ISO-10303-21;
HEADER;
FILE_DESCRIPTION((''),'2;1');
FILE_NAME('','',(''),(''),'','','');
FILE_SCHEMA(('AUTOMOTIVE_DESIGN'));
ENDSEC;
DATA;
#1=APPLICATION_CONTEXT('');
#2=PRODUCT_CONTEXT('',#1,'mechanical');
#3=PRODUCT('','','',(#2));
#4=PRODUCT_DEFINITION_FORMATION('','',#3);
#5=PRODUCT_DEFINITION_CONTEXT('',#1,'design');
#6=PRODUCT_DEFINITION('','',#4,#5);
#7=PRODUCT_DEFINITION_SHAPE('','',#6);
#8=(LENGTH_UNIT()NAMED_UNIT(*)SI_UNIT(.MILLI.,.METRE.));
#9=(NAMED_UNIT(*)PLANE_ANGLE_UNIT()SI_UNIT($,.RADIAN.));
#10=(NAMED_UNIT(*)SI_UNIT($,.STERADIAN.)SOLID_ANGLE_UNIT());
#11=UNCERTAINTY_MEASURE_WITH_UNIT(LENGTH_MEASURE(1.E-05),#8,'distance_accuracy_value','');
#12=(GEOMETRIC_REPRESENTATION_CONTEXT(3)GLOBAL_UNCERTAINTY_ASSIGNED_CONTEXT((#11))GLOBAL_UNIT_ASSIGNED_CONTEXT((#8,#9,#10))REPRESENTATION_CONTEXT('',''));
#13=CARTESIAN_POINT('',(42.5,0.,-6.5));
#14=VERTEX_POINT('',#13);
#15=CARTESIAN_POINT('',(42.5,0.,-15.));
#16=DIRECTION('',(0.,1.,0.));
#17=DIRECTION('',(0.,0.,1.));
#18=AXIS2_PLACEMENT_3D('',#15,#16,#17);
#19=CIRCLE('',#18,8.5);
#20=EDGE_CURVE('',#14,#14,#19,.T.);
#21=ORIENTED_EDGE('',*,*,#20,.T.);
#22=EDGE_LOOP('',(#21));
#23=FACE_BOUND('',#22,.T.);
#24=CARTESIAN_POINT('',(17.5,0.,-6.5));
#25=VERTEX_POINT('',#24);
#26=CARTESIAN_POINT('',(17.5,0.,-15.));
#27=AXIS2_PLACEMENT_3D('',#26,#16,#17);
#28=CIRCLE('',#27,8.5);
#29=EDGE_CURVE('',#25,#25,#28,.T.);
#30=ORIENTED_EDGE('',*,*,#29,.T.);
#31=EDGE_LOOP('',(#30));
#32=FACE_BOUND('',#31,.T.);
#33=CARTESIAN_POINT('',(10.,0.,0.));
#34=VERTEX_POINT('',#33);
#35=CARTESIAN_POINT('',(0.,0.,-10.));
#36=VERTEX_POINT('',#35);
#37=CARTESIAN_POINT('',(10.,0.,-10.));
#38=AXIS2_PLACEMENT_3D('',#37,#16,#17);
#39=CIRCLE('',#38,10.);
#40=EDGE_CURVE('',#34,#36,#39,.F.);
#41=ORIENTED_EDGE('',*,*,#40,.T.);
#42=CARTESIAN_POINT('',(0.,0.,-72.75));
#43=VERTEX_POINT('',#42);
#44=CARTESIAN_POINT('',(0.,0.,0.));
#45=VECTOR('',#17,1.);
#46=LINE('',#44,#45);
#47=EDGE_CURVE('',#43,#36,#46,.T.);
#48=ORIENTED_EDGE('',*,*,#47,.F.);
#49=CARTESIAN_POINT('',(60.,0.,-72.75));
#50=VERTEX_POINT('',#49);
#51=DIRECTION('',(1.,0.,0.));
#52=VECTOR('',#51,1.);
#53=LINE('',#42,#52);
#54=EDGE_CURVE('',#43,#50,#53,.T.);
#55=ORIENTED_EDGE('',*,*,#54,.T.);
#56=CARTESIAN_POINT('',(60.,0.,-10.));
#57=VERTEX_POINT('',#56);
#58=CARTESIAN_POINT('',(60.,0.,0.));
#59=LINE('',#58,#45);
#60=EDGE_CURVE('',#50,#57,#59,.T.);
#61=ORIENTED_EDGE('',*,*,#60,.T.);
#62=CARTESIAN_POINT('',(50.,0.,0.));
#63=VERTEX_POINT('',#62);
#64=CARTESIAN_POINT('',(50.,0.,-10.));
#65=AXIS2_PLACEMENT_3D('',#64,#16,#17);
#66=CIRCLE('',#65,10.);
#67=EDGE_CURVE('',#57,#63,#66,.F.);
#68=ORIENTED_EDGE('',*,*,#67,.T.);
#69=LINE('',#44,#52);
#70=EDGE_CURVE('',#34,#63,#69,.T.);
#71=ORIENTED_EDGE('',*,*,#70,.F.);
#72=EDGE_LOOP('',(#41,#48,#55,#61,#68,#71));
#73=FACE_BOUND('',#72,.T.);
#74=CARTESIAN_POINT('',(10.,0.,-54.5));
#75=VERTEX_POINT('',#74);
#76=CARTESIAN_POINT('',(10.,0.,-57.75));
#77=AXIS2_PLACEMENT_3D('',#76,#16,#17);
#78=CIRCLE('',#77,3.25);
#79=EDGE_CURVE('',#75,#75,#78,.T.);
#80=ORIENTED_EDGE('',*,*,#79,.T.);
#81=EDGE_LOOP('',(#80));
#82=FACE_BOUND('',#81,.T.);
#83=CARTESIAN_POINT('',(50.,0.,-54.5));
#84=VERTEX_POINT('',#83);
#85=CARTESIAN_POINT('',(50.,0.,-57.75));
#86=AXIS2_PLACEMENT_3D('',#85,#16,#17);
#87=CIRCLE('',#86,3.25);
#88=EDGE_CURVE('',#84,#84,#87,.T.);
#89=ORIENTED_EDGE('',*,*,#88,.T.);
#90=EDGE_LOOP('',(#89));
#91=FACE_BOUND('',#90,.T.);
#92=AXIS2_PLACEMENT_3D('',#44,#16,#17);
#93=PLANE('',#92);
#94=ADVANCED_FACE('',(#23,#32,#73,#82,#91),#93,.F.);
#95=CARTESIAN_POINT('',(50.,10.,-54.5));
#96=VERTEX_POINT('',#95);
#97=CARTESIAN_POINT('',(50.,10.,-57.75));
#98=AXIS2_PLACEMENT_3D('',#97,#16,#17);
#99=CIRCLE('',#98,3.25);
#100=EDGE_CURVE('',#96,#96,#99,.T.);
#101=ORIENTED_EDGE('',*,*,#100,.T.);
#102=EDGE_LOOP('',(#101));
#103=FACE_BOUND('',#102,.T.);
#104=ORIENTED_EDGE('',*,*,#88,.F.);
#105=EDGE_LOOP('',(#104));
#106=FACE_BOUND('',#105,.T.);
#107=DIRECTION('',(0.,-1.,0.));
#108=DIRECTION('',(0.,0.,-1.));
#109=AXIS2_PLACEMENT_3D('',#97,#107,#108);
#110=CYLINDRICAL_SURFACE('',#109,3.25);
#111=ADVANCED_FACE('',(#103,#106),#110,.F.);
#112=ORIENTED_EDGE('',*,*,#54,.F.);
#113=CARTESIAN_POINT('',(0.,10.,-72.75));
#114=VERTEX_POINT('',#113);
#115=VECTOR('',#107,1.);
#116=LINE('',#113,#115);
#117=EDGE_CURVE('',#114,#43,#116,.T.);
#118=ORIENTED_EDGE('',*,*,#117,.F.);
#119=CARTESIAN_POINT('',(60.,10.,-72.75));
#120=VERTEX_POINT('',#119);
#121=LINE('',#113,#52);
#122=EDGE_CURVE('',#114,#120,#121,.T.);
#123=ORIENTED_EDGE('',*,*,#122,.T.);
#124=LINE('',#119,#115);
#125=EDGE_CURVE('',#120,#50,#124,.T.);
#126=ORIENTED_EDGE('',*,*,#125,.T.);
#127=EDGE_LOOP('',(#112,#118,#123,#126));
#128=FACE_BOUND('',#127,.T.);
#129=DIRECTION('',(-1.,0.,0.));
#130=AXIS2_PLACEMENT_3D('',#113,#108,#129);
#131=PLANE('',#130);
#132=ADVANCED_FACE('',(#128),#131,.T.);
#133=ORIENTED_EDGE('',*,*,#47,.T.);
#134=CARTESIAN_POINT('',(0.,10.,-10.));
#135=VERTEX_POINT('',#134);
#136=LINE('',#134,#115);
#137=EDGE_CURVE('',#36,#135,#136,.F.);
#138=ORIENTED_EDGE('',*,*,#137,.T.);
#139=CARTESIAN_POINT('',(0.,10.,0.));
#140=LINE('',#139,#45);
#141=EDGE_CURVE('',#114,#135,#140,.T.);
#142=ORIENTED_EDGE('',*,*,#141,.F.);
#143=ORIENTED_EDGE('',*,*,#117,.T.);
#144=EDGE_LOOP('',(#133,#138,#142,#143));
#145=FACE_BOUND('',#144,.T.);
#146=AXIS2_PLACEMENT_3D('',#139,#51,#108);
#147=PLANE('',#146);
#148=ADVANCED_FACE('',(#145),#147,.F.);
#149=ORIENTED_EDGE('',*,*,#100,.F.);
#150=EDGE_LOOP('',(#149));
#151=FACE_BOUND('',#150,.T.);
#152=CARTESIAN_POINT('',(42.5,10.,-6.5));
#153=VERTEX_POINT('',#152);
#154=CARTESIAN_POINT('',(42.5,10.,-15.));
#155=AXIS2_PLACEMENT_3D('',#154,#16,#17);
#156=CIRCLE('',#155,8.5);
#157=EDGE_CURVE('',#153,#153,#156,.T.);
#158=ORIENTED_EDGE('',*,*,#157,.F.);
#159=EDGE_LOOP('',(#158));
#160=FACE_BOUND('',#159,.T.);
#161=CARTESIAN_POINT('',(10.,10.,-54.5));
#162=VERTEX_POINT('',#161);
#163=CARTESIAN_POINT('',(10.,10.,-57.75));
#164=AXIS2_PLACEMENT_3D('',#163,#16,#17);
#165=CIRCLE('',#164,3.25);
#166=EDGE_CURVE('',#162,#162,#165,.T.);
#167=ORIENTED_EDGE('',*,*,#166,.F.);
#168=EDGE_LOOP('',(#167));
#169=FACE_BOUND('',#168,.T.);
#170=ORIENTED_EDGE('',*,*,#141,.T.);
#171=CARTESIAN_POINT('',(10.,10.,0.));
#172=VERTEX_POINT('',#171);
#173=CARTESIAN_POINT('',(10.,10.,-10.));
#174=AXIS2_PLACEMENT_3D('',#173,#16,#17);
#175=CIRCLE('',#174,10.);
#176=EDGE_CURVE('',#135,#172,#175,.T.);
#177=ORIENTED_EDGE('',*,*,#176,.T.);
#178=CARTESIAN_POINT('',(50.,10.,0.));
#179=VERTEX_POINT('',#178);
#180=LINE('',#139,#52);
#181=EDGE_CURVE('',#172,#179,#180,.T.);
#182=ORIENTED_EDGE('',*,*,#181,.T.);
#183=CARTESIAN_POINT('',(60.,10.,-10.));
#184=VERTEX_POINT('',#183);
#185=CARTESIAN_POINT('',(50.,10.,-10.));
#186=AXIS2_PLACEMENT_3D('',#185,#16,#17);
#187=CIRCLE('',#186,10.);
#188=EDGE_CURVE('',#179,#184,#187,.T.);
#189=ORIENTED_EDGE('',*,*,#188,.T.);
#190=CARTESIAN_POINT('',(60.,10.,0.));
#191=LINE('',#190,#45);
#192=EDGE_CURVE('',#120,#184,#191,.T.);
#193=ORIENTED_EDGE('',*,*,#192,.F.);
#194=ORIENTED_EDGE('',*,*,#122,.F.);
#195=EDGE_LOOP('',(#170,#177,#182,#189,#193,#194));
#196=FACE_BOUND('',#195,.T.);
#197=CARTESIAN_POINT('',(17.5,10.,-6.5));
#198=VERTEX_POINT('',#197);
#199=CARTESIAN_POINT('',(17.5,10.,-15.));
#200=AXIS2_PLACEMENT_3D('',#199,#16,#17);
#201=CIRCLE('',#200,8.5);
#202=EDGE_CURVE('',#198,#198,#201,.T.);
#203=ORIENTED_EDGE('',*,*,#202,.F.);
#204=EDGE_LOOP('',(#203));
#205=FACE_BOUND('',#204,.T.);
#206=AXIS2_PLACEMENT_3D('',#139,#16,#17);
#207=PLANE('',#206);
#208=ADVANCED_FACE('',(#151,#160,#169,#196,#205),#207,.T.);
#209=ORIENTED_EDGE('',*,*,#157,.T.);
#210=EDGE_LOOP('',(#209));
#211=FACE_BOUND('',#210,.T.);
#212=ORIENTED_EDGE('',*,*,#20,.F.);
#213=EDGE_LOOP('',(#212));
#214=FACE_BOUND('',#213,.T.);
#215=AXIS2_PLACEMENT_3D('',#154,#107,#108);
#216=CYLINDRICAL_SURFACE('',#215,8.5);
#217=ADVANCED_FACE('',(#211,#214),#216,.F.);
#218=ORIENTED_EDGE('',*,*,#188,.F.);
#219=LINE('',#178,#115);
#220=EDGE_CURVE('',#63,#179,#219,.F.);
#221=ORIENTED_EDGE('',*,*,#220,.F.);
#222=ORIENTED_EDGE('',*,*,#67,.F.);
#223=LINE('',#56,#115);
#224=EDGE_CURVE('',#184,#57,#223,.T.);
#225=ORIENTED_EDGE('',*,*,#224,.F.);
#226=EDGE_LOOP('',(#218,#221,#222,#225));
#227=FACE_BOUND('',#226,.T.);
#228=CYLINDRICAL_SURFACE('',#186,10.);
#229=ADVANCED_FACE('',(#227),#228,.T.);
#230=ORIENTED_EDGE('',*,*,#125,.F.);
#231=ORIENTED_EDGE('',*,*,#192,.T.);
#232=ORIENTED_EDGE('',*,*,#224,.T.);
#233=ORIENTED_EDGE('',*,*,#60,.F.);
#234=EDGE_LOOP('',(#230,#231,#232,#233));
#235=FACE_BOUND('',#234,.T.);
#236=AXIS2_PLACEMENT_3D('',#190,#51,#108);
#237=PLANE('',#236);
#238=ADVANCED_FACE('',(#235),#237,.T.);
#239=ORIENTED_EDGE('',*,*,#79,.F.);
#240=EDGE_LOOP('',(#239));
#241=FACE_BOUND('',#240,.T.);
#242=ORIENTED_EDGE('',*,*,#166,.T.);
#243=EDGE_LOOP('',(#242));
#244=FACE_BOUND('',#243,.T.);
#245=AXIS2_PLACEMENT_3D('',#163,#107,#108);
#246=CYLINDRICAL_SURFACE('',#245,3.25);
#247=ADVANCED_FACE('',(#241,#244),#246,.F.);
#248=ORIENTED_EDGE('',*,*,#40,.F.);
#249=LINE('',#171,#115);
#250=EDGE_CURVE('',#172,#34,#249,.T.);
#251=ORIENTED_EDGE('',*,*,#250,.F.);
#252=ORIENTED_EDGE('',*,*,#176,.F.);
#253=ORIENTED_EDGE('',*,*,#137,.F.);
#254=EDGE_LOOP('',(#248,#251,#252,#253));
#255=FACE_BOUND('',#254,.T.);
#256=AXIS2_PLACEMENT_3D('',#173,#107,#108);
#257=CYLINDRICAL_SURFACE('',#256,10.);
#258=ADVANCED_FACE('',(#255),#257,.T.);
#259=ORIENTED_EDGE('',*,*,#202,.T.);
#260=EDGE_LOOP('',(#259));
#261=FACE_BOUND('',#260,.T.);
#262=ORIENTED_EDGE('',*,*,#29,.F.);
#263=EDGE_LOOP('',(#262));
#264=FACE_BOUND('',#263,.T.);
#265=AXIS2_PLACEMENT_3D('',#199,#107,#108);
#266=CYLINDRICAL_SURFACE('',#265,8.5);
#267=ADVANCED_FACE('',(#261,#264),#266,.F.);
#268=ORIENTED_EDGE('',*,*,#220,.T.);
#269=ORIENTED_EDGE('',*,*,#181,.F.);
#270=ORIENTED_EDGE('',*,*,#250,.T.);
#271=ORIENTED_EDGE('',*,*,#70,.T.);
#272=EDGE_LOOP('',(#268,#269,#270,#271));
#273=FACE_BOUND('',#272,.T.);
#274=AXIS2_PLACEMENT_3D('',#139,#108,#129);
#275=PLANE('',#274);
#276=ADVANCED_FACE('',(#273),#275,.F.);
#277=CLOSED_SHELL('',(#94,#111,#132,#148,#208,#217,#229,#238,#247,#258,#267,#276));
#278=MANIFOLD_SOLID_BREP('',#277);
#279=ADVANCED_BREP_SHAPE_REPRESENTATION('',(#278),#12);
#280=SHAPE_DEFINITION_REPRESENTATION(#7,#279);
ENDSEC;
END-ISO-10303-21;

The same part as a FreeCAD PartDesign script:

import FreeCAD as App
import Part
import Sketcher
Q = App.Units.Quantity


def edges_at(feature, points):
    """Names of the edges that pass closest to the given points."""
    edges = feature.Shape.Edges
    near = lambda p: min(range(len(edges)), key=lambda i: edges[i].distToShape(Part.Vertex(*p))[0])
    return sorted({f"Edge{near(p) + 1}" for p in points})


def add_polygon(sketch, points):
    """Adds a closed chain of lines whose ends are joined by coincident constraints."""
    first, n = sketch.GeometryCount, len(points)
    for a, b in zip(points, points[1:] + points[:1]):
        sketch.addGeometry(Part.LineSegment(App.Vector(*a, 0), App.Vector(*b, 0)), False)
    for i in range(n):
        sketch.addConstraint(Sketcher.Constraint("Coincident", first + i, 2, first + (i + 1) % n, 1))

doc = App.newDocument("Part")
params = doc.addObject("Spreadsheet::Sheet", "Params")
for row, (alias, value) in enumerate([
    ("sketch1_diameter", "17 mm"),
    ("sketch1_diameter2", "6.5 mm"),
    ("sketch1_width", "60 mm"),
    ("sketch1_height", "72.75 mm"),
    ("pad1_length", "10 mm"),
    ("fillet_radius", "10 mm"),
], start=1):
    params.set(f"A{row}", alias)
    params.set(f"B{row}", "=" + value)
    params.setAlias(f"B{row}", alias)

body = doc.addObject("PartDesign::Body", "Body")

# Sketch on XZ plane
sketch1 = doc.addObject("Sketcher::SketchObject", "Sketch")
body.addObject(sketch1)
sketch1.AttachmentSupport = (doc.XZ_Plane, [""])
sketch1.MapMode = "FlatFace"
add_polygon(sketch1, [(0, -72.75), (0, 0), (60, 0), (60, -72.75)])  # lines 0-3
sketch1.addGeometry(Part.Circle(App.Vector(17.5, -15, 0), App.Vector(0, 0, 1), 8.5), False)  # 4
sketch1.addGeometry(Part.Circle(App.Vector(42.5, -15, 0), App.Vector(0, 0, 1), 8.5), False)  # 5
sketch1.addGeometry(Part.Circle(App.Vector(10, -57.75, 0), App.Vector(0, 0, 1), 3.25), False)  # 6
sketch1.addGeometry(Part.Circle(App.Vector(50, -57.75, 0), App.Vector(0, 0, 1), 3.25), False)  # 7
sketch1.addConstraint(Sketcher.Constraint("Vertical", 0))
sketch1.addConstraint(Sketcher.Constraint("Horizontal", 1))
sketch1.addConstraint(Sketcher.Constraint("Vertical", 2))
sketch1.addConstraint(Sketcher.Constraint("Horizontal", 3))
sketch1.addConstraint(Sketcher.Constraint("Coincident", 0, 2, -1, 1))
sketch1.addConstraint(Sketcher.Constraint("Equal", 4, 5))
sketch1.addConstraint(Sketcher.Constraint("Equal", 6, 7))
sketch1.addConstraint(Sketcher.Constraint("Horizontal", 4, 3, 5, 3))
sketch1.addConstraint(Sketcher.Constraint("Horizontal", 6, 3, 7, 3))
sketch1.addConstraint(Sketcher.Constraint("Diameter", 4, Q("17 mm")))
sketch1.addConstraint(Sketcher.Constraint("Diameter", 6, Q("6.5 mm")))
sketch1.addConstraint(Sketcher.Constraint("DistanceX", 1, 1, 1, 2, Q("60 mm")))
sketch1.addConstraint(Sketcher.Constraint("DistanceY", 4, 3, -1, 1, Q("15 mm")))
sketch1.addConstraint(Sketcher.Constraint("DistanceX", -1, 1, 6, 3, Q("10 mm")))
sketch1.addConstraint(Sketcher.Constraint("DistanceX", -1, 1, 7, 3, Q("50 mm")))
sketch1.addConstraint(Sketcher.Constraint("DistanceX", 4, 3, 5, 3, Q("25 mm")))
sketch1.addConstraint(Sketcher.Constraint("DistanceY", 2, 2, 7, 3, Q("15 mm")))
sketch1.addConstraint(Sketcher.Constraint("DistanceY", 0, 1, 0, 2, Q("72.75 mm")))
sketch1.addConstraint(Sketcher.Constraint("DistanceX", -1, 1, 4, 3, Q("17.5 mm")))
sketch1.setExpression("Constraints[13]", "Params.sketch1_diameter")
sketch1.setExpression("Constraints[14]", "Params.sketch1_diameter2")
sketch1.setExpression("Constraints[15]", "Params.sketch1_width")
sketch1.setExpression("Constraints[21]", "Params.sketch1_height")
pad1 = doc.addObject("PartDesign::Pad", "Pad")
body.addObject(pad1)
pad1.Profile = sketch1
pad1.setExpression("Length", "Params.pad1_length")
pad1.Reversed = True
doc.recompute()

fillet = doc.addObject("PartDesign::Fillet", "Fillet")
body.addObject(fillet)
fillet.Base = (pad1, edges_at(pad1, [(60, 5, 0), (0, 5, 0)]))
fillet.setExpression("Radius", "Params.fillet_radius")

doc.recompute()
